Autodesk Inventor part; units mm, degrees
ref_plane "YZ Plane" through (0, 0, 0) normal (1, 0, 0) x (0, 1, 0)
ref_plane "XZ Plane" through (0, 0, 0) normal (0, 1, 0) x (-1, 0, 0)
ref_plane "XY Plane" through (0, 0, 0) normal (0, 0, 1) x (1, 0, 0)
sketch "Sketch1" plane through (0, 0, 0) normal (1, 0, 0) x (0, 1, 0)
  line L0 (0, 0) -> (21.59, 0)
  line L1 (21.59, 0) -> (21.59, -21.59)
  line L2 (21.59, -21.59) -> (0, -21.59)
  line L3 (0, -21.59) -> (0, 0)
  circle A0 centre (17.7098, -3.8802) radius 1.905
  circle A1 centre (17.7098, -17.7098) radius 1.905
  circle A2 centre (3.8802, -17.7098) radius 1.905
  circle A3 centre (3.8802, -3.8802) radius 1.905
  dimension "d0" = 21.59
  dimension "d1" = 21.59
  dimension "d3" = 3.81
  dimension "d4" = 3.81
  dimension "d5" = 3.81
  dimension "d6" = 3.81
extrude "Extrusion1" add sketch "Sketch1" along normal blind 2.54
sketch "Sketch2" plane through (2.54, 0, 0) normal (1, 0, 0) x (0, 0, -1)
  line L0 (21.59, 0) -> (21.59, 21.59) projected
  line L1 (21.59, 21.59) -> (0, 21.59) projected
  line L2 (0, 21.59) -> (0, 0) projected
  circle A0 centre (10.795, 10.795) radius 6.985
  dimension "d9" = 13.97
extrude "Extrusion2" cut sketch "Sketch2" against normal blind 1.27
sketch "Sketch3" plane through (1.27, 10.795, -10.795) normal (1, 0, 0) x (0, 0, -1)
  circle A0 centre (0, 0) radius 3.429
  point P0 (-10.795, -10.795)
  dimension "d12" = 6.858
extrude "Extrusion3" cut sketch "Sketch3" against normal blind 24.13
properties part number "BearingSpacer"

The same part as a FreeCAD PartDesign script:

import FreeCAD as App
import Part
import Sketcher
from FreeCAD import Vector
Q = App.Units.Quantity


def add_polygon(sketch, points):
    """Adds a closed chain of lines whose ends are joined by coincident constraints."""
    first, n = sketch.GeometryCount, len(points)
    for a, b in zip(points, points[1:] + points[:1]):
        sketch.addGeometry(Part.LineSegment(App.Vector(*a, 0), App.Vector(*b, 0)), False)
    for i in range(n):
        sketch.addConstraint(Sketcher.Constraint("Coincident", first + i, 2, first + (i + 1) % n, 1))

doc = App.newDocument("Part")
body = doc.addObject("PartDesign::Body", "Body")

sketch1 = body.newObject("Sketcher::SketchObject", "Sketch")
sketch1.AttachmentSupport = (doc.getObject("YZ_Plane"), [""])
sketch1.MapMode = "FlatFace"
add_polygon(sketch1, [(21.6, 0), (0, 0), (0, -21.6), (21.6, -21.6)])
sketch1.addGeometry(Part.Circle(Vector(3.9, -17.7, 0), Vector(0, 0, 1), 1.9), False)
sketch1.addGeometry(Part.Circle(Vector(17.7, -17.7, 0), Vector(0, 0, 1), 1.9), False)
sketch1.addGeometry(Part.Circle(Vector(3.9, -3.9, 0), Vector(0, 0, 1), 1.9), False)
sketch1.addGeometry(Part.Circle(Vector(17.7, -3.9, 0), Vector(0, 0, 1), 1.9), False)
sketch1.addConstraint([
    Sketcher.Constraint("Horizontal", 0),
    Sketcher.Constraint("Vertical", 1),
    Sketcher.Constraint("Horizontal", 2),
    Sketcher.Constraint("Vertical", 3),
    Sketcher.Constraint("Coincident", 0, 2, -1, 1),
    Sketcher.Constraint("Equal", 4, 5),
    Sketcher.Constraint("Equal", 5, 6),
    Sketcher.Constraint("Equal", 6, 7),
    Sketcher.Constraint("Horizontal", 4, 3, 5, 3),
    Sketcher.Constraint("Horizontal", 6, 3, 7, 3),
    Sketcher.Constraint("Vertical", 4, 3, 6, 3),
    Sketcher.Constraint("Vertical", 5, 3, 7, 3),
    Sketcher.Constraint("Equal", 2, 1),
    Sketcher.Constraint("Diameter", 4, Q("0.15 in")),
    Sketcher.Constraint("DistanceX", 0, 2, 0, 1, Q("0.85 in")),
    Sketcher.Constraint("DistanceX", -1, 1, 4, 3, 3.8802),
    Sketcher.Constraint("DistanceY", 4, 3, -1, 1, 17.7098),
    Sketcher.Constraint("DistanceX", -1, 1, 5, 3, 17.7098),
    Sketcher.Constraint("DistanceY", 6, 3, -1, 1, 3.8802),
])
pad1 = body.newObject("PartDesign::Pad", "Pad")
pad1.Profile = sketch1
pad1.Length = Q("0.1 in")

sketch2 = body.newObject("Sketcher::SketchObject", "Sketch001")
sketch2.AttachmentSupport = (doc.getObject("YZ_Plane"), [""])
sketch2.MapMode = "FlatFace"
sketch2.AttachmentOffset = App.Placement(Vector(0, 0, 0.1 * 25.4), App.Rotation())
sketch2.addGeometry(Part.Circle(Vector(11, -11, 0), Vector(0, 0, 1), 7), False)
sketch2.addConstraint([
    Sketcher.Constraint("Diameter", 0, Q("0.55 in")),
    Sketcher.Constraint("DistanceX", -1, 1, 0, 3, Q("0.425 in")),
    Sketcher.Constraint("DistanceY", 0, 3, -1, 1, Q("0.425 in")),
])
pocket1 = body.newObject("PartDesign::Pocket", "Pocket")
pocket1.Profile = sketch2
pocket1.Length = Q("0.05 in")

sketch3 = body.newObject("Sketcher::SketchObject", "Sketch002")
sketch3.AttachmentSupport = (doc.getObject("YZ_Plane"), [""])
sketch3.MapMode = "FlatFace"
sketch3.AttachmentOffset = App.Placement(Vector(0, 0, 0.05 * 25.4), App.Rotation())
sketch3.addGeometry(Part.Circle(Vector(10.8, -10.8, 0), Vector(0, 0, 1), 3.4), False)
sketch3.addConstraint([
    Sketcher.Constraint("Diameter", 0, Q("0.27 in")),
    Sketcher.Constraint("DistanceX", -1, 1, 0, 3, Q("0.425 in")),
    Sketcher.Constraint("DistanceY", 0, 3, -1, 1, Q("0.425 in")),
])
pocket2 = body.newObject("PartDesign::Pocket", "Pocket001")
pocket2.Profile = sketch3
pocket2.Length = Q("0.95 in")

doc.recompute()
